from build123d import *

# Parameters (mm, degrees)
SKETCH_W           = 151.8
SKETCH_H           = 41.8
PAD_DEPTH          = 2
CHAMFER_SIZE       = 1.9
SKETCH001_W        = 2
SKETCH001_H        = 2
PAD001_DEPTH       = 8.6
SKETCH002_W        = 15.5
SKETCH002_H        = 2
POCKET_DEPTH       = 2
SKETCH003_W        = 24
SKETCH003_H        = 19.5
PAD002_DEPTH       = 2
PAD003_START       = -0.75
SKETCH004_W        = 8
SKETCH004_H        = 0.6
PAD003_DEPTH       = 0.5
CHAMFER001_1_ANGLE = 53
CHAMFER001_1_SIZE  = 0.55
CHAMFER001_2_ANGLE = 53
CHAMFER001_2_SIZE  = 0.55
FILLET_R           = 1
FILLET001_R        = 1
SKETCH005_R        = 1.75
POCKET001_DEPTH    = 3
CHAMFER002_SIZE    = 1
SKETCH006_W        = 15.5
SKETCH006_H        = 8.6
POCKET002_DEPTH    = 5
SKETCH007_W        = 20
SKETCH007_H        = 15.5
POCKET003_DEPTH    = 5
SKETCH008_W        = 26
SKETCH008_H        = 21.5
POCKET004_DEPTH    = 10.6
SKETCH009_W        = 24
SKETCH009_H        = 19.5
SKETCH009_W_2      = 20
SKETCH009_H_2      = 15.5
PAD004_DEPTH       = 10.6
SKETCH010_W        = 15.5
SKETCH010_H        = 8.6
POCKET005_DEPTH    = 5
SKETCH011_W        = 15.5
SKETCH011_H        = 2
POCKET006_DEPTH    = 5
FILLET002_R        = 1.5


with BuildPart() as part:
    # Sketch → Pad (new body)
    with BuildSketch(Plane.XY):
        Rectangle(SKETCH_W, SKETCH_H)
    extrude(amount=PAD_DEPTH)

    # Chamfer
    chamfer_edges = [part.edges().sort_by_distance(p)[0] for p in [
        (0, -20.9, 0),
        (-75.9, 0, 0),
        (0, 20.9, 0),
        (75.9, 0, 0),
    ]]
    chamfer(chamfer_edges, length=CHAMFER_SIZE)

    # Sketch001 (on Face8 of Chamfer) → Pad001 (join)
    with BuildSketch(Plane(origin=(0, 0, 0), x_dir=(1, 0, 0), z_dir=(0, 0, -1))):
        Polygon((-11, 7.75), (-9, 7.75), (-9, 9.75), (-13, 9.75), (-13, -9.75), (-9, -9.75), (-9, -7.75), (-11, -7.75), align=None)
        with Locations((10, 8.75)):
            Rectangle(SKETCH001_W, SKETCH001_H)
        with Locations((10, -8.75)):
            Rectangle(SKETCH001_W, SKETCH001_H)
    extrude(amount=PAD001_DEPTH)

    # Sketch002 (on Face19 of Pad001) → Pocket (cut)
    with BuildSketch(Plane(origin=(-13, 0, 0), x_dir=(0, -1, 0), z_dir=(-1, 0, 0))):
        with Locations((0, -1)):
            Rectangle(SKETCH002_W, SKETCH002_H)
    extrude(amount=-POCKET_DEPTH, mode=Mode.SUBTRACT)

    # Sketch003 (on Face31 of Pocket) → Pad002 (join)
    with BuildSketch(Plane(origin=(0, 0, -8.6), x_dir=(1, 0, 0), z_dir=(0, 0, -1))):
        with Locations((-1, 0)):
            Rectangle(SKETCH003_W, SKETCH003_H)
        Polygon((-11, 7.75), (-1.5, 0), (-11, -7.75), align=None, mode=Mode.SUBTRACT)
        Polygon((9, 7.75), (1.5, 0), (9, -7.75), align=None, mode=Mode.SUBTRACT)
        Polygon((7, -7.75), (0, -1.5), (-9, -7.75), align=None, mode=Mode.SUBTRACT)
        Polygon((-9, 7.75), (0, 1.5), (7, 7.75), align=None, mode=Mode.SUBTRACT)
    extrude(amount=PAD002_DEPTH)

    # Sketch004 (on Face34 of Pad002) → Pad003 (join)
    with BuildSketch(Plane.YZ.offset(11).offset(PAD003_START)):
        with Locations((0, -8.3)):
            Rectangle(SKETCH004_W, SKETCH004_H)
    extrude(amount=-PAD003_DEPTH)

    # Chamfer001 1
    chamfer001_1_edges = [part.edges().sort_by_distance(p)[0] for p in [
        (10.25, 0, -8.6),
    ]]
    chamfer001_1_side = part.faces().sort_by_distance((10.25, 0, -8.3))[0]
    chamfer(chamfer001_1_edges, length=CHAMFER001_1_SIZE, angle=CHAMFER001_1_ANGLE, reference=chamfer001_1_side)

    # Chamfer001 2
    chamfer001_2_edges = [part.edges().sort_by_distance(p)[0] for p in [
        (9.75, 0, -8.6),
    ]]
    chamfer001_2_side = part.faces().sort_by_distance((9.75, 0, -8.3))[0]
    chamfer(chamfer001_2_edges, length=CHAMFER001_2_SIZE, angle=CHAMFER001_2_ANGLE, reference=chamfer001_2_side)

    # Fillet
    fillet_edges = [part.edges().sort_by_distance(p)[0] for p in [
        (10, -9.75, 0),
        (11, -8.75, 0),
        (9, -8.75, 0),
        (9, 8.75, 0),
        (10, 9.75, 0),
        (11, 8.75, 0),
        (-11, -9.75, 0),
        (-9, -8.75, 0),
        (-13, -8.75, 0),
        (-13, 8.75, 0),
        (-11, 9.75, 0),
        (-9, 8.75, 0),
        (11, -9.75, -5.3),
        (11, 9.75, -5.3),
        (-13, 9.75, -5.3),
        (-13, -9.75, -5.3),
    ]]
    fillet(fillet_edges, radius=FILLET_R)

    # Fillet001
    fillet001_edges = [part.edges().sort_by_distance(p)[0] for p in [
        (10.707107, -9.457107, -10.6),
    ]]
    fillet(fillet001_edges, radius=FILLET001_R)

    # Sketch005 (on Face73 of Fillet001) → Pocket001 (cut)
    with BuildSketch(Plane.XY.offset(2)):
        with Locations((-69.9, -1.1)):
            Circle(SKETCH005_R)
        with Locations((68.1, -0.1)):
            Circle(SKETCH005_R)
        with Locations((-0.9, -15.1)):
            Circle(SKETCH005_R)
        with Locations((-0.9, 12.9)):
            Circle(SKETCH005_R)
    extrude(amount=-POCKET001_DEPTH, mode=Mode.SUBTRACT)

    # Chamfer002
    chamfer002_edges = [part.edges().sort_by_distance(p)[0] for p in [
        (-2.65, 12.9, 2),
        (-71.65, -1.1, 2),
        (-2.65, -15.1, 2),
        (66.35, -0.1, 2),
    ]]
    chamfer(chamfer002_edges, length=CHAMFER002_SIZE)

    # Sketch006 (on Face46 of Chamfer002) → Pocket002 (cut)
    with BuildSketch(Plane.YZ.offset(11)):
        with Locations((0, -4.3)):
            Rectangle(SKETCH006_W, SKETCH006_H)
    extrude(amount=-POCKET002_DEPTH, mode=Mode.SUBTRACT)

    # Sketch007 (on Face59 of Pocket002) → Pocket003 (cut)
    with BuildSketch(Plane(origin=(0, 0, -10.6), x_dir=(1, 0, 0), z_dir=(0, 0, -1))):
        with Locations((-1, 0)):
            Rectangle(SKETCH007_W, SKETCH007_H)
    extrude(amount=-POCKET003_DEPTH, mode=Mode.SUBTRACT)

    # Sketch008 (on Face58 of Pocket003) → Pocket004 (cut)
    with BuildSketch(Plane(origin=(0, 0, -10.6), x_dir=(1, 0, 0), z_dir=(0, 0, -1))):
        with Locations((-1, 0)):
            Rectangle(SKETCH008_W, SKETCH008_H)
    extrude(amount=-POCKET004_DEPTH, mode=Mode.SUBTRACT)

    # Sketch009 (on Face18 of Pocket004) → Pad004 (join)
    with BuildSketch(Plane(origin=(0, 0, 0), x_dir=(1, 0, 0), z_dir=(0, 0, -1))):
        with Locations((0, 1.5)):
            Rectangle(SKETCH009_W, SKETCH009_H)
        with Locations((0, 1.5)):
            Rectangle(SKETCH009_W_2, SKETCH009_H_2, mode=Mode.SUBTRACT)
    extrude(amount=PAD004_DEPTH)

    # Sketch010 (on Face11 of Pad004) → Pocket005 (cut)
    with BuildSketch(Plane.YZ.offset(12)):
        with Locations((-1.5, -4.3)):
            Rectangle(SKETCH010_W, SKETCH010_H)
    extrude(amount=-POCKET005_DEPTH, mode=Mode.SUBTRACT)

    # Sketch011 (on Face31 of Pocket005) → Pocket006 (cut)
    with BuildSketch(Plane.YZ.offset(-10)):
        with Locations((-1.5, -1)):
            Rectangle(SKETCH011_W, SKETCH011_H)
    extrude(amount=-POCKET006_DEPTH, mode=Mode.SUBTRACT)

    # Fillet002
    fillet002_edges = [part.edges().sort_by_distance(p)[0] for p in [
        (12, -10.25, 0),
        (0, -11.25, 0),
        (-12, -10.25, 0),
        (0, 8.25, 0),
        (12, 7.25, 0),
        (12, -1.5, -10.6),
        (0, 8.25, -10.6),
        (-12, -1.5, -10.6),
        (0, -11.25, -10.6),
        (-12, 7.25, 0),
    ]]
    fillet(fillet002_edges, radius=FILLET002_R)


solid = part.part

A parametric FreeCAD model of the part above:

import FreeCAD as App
import Part
import Sketcher

V = App.Vector
Q = App.Units.Quantity


def edges_at(feature, points):
    """Names of the edges that pass closest to the given points."""
    edges = feature.Shape.Edges
    near = lambda p: min(range(len(edges)), key=lambda i: edges[i].distToShape(Part.Vertex(*p))[0])
    return sorted({f"Edge{near(p) + 1}" for p in points})


def add_polygon(sketch, points):
    """Adds a closed chain of lines whose ends are joined by coincident constraints."""
    first, n = sketch.GeometryCount, len(points)
    for a, b in zip(points, points[1:] + points[:1]):
        sketch.addGeometry(Part.LineSegment(App.Vector(*a, 0), App.Vector(*b, 0)), False)
    for i in range(n):
        sketch.addConstraint(Sketcher.Constraint("Coincident", first + i, 2, first + (i + 1) % n, 1))

doc = App.newDocument("Part")
params = doc.addObject("Spreadsheet::Sheet", "Params")
for row, (alias, value) in enumerate([
    ("sketch1_width", "151.8 mm"),
    ("sketch1_height", "41.8 mm"),
    ("pad1_length", "2 mm"),
    ("chamfer_size", "1.9 mm"),
    ("sketch2_width", "2 mm"),
    ("sketch2_width2", "4 mm"),
    ("sketch2_height", "19.5 mm"),
    ("pad2_length", "8.6 mm"),
    ("sketch3_height", "2 mm"),
    ("sketch3_width", "15.5 mm"),
    ("pocket1_length", "2 mm"),
    ("sketch4_width", "24 mm"),
    ("sketch4_width2", "16 mm"),
    ("sketch4_height", "19.5 mm"),
    ("sketch4_height2", "15.5 mm"),
    ("pad3_length", "2 mm"),
    ("sketch5_width", "8 mm"),
    ("sketch5_height", "0.6 mm"),
    ("pad4_length", "0.5 mm"),
    ("chamfer2_size", "0.55 mm"),
    ("chamfer3_size", "0.55 mm"),
    ("fillet_radius", "1 mm"),
    ("fillet2_radius", "1 mm"),
    ("sketch6_diameter", "3.5 mm"),
    ("pocket2_length", "3 mm"),
    ("chamfer4_size", "1 mm"),
    ("sketch7_width", "15.5 mm"),
    ("sketch7_height", "8.6 mm"),
    ("pocket3_length", "5 mm"),
    ("sketch8_width", "20 mm"),
    ("sketch8_height", "15.5 mm"),
    ("pocket4_length", "5 mm"),
    ("sketch9_width", "26 mm"),
    ("sketch9_height", "21.5 mm"),
    ("pocket5_length", "10.6 mm"),
    ("sketch10_width", "24 mm"),
    ("sketch10_width2", "20 mm"),
    ("sketch10_height", "19.5 mm"),
    ("sketch10_height2", "15.5 mm"),
    ("pad5_length", "10.6 mm"),
    ("sketch11_width", "15.5 mm"),
    ("sketch11_height", "8.6 mm"),
    ("pocket6_length", "5 mm"),
    ("sketch12_height", "2 mm"),
    ("sketch12_width", "15.5 mm"),
    ("pocket7_length", "5 mm"),
    ("fillet3_radius", "1.5 mm"),
], start=1):
    params.set(f"A{row}", alias)
    params.set(f"B{row}", "=" + value)
    params.setAlias(f"B{row}", alias)

body = doc.addObject("PartDesign::Body", "Body")

sketch1 = body.newObject("Sketcher::SketchObject", "Sketch")
sketch1.AttachmentSupport = (doc.getObject("XY_Plane"), [""])
sketch1.MapMode = "FlatFace"
add_polygon(sketch1, [(-76, 21), (-76, -21), (76, -21), (76, 21)])
sketch1.addConstraint(Sketcher.Constraint("Vertical", 0))
sketch1.addConstraint(Sketcher.Constraint("Horizontal", 1))
sketch1.addConstraint(Sketcher.Constraint("Vertical", 2))
sketch1.addConstraint(Sketcher.Constraint("Horizontal", 3))
sketch1.addConstraint(Sketcher.Constraint("Symmetric", 0, 2, 2, 2, -1, 1))
sketch1.addConstraint(Sketcher.Constraint("DistanceX", 1, 1, 1, 2, Q("151.8 mm")))
sketch1.addConstraint(Sketcher.Constraint("DistanceY", 0, 2, 0, 1, Q("41.8 mm")))
sketch1.setExpression("Constraints[9]", "Params.sketch1_width")
sketch1.setExpression("Constraints[10]", "Params.sketch1_height")
pad1 = body.newObject("PartDesign::Pad", "Pad")
pad1.Profile = sketch1
pad1.setExpression("Length", "Params.pad1_length")
doc.recompute()

chamfer = body.newObject("PartDesign::Chamfer", "Chamfer")
chamfer.Base = (pad1, edges_at(pad1, [
    (0, -20.9, 0),
    (-75.9, 0, 0),
    (0, 20.9, 0),
    (75.9, 0, 0),
]))
chamfer.setExpression("Size", "Params.chamfer_size")

sketch2 = body.newObject("Sketcher::SketchObject", "Sketch001")
sketch2.AttachmentSupport = (doc.getObject("XY_Plane"), [""])
sketch2.MapMode = "FlatFace"
add_polygon(sketch2, [(-11, -7.8), (-9, -7.8), (-9, -9.8), (-13, -9.8), (-13, 9.8), (-9, 9.8), (-9, 7.8), (-11, 7.8)])
add_polygon(sketch2, [(9, -9.8), (9, -7.8), (11, -7.8), (11, -9.8)])
add_polygon(sketch2, [(9, 7.8), (9, 9.8), (11, 9.8), (11, 7.8)])
sketch2.addConstraint(Sketcher.Constraint("Horizontal", 0))
sketch2.addConstraint(Sketcher.Constraint("Vertical", 1))
sketch2.addConstraint(Sketcher.Constraint("Horizontal", 2))
sketch2.addConstraint(Sketcher.Constraint("Vertical", 3))
sketch2.addConstraint(Sketcher.Constraint("Horizontal", 4))
sketch2.addConstraint(Sketcher.Constraint("Vertical", 5))
sketch2.addConstraint(Sketcher.Constraint("Horizontal", 6))
sketch2.addConstraint(Sketcher.Constraint("Vertical", 7))
sketch2.addConstraint(Sketcher.Constraint("Vertical", 8))
sketch2.addConstraint(Sketcher.Constraint("Horizontal", 9))
sketch2.addConstraint(Sketcher.Constraint("Vertical", 10))
sketch2.addConstraint(Sketcher.Constraint("Horizontal", 11))
sketch2.addConstraint(Sketcher.Constraint("Vertical", 12))
sketch2.addConstraint(Sketcher.Constraint("Horizontal", 13))
sketch2.addConstraint(Sketcher.Constraint("Vertical", 14))
sketch2.addConstraint(Sketcher.Constraint("Horizontal", 15))
sketch2.addConstraint(Sketcher.Constraint("Symmetric", 5, 2, 8, 2, -1, 1))
sketch2.addConstraint(Sketcher.Constraint("Symmetric", 1, 2, 12, 2, -1, 1))
sketch2.addConstraint(Sketcher.Constraint("Symmetric", 7, 2, 14, 2, -1, 1))
sketch2.addConstraint(Sketcher.Constraint("Symmetric", 0, 2, 8, 2, -2))
sketch2.addConstraint(Sketcher.Constraint("Symmetric", 10, 2, 13, 2, -1))
sketch2.addConstraint(Sketcher.Constraint("Horizontal", 4, 2, 12, 2))
sketch2.addConstraint(Sketcher.Constraint("Equal", 15, 1))
sketch2.addConstraint(Sketcher.Constraint("DistanceX", 0, 1, 0, 2, Q("2 mm")))
sketch2.addConstraint(Sketcher.Constraint("DistanceX", 2, 2, 2, 1, Q("4 mm")))
sketch2.addConstraint(Sketcher.Constraint("DistanceY", 3, 1, 3, 2, Q("19.5 mm")))
sketch2.addConstraint(Sketcher.Constraint("DistanceX", 0, 2, -1, 1, Q("9 mm")))
sketch2.setExpression("Constraints[39]", "Params.sketch2_width")
sketch2.setExpression("Constraints[40]", "Params.sketch2_width2")
sketch2.setExpression("Constraints[41]", "Params.sketch2_height")
pad2 = body.newObject("PartDesign::Pad", "Pad001")
pad2.Profile = sketch2
pad2.setExpression("Length", "Params.pad2_length")
pad2.Reversed = True

sketch3 = body.newObject("Sketcher::SketchObject", "Sketch002")
sketch3.AttachmentSupport = (doc.getObject("YZ_Plane"), [""])
sketch3.MapMode = "FlatFace"
sketch3.AttachmentOffset = App.Placement(V(0, 0, -13), App.Rotation())
add_polygon(sketch3, [(7.8, 0), (7.8, -2), (-7.8, -2), (-7.8, 0)])
sketch3.addConstraint(Sketcher.Constraint("Vertical", 0))
sketch3.addConstraint(Sketcher.Constraint("Horizontal", 1))
sketch3.addConstraint(Sketcher.Constraint("Vertical", 2))
sketch3.addConstraint(Sketcher.Constraint("Horizontal", 3))
sketch3.addConstraint(Sketcher.Constraint("Symmetric", 2, 2, 3, 2, -1, 1))
sketch3.addConstraint(Sketcher.Constraint("DistanceY", 0, 2, 0, 1, Q("2 mm")))
sketch3.addConstraint(Sketcher.Constraint("DistanceX", 1, 2, 1, 1, Q("15.5 mm")))
sketch3.setExpression("Constraints[9]", "Params.sketch3_height")
sketch3.setExpression("Constraints[10]", "Params.sketch3_width")
pocket1 = body.newObject("PartDesign::Pocket", "Pocket")
pocket1.Profile = sketch3
pocket1.setExpression("Length", "Params.pocket1_length")
pocket1.Reversed = True

sketch4 = body.newObject("Sketcher::SketchObject", "Sketch003")
sketch4.AttachmentSupport = (doc.getObject("XY_Plane"), [""])
sketch4.MapMode = "FlatFace"
sketch4.AttachmentOffset = App.Placement(V(0, 0, -8.6), App.Rotation())
add_polygon(sketch4, [(-13, -10), (-13, 10), (11, 10), (11, -10)])
add_polygon(sketch4, [(-11, 8), (-11, -8), (-2, 0)])
add_polygon(sketch4, [(0, 2), (7, 8), (-9, 8)])
add_polygon(sketch4, [(2, 0), (9, -8), (9, 8)])
add_polygon(sketch4, [(0, -2), (-9, -8), (7, -8)])
sketch4.addConstraint(Sketcher.Constraint("Vertical", 0))
sketch4.addConstraint(Sketcher.Constraint("Horizontal", 1))
sketch4.addConstraint(Sketcher.Constraint("Vertical", 2))
sketch4.addConstraint(Sketcher.Constraint("Horizontal", 3))
sketch4.addConstraint(Sketcher.Constraint("Vertical", 4))
sketch4.addConstraint(Sketcher.Constraint("Horizontal", 8))
sketch4.addConstraint(Sketcher.Constraint("Vertical", 11))
sketch4.addConstraint(Sketcher.Constraint("Horizontal", 14))
sketch4.addConstraint(Sketcher.Constraint("Symmetric", 8, 2, 10, 2, -1, 1))
sketch4.addConstraint(Sketcher.Constraint("Symmetric", 5, 2, 12, 2, -1, 1))
sketch4.addConstraint(Sketcher.Constraint("Symmetric", 11, 2, 13, 2, -1, 1))
sketch4.addConstraint(Sketcher.Constraint("Symmetric", 9, 2, 15, 2, -1, 1))
sketch4.addConstraint(Sketcher.Constraint("Symmetric", 7, 2, 14, 2, -1))
sketch4.addConstraint(Sketcher.Constraint("PointOnObject", 5, 2, -1))
sketch4.addConstraint(Sketcher.Constraint("PointOnObject", 9, 2, -2))
sketch4.addConstraint(Sketcher.Constraint("Horizontal", 6, 2, 7, 2))
sketch4.addConstraint(Sketcher.Constraint("Horizontal", 4, 2, 10, 2))
sketch4.addConstraint(Sketcher.Constraint("DistanceX", 1, 1, 1, 2, Q("24 mm")))
sketch4.addConstraint(Sketcher.Constraint("DistanceX", 8, 2, 8, 1, Q("16 mm")))
sketch4.addConstraint(Sketcher.Constraint("DistanceY", 0, 1, 0, 2, Q("19.5 mm")))
sketch4.addConstraint(Sketcher.Constraint("DistanceY", 4, 2, 4, 1, Q("15.5 mm")))
sketch4.addConstraint(Sketcher.Constraint("DistanceX", 0, 2, -1, 1, Q("13 mm")))
sketch4.addConstraint(Sketcher.Constraint("DistanceX", 4, 2, -1, 1, Q("11 mm")))
sketch4.addConstraint(Sketcher.Constraint("DistanceX", -1, 1, 7, 2, Q("7 mm")))
sketch4.addConstraint(Sketcher.Constraint("DistanceY", 3, 2, 4, 2, Q("2 mm")))
sketch4.addConstraint(Sketcher.Constraint("DistanceX", 5, 2, 12, 2, Q("3 mm")))
sketch4.addConstraint(Sketcher.Constraint("DistanceY", 15, 2, 9, 2, Q("3 mm")))
sketch4.setExpression("Constraints[33]", "Params.sketch4_width")
sketch4.setExpression("Constraints[34]", "Params.sketch4_width2")
sketch4.setExpression("Constraints[35]", "Params.sketch4_height")
sketch4.setExpression("Constraints[36]", "Params.sketch4_height2")
pad3 = body.newObject("PartDesign::Pad", "Pad002")
pad3.Profile = sketch4
pad3.setExpression("Length", "Params.pad3_length")
pad3.Reversed = True

sketch5 = body.newObject("Sketcher::SketchObject", "Sketch004")
sketch5.AttachmentSupport = (doc.getObject("YZ_Plane"), [""])
sketch5.MapMode = "FlatFace"
sketch5.AttachmentOffset = App.Placement(V(0, 0, 10.25), App.Rotation())
add_polygon(sketch5, [(-4, -8), (-4, -8.6), (4, -8.6), (4, -8)])
sketch5.addConstraint(Sketcher.Constraint("Vertical", 0))
sketch5.addConstraint(Sketcher.Constraint("Horizontal", 1))
sketch5.addConstraint(Sketcher.Constraint("Vertical", 2))
sketch5.addConstraint(Sketcher.Constraint("Horizontal", 3))
sketch5.addConstraint(Sketcher.Constraint("DistanceX", 1, 1, 1, 2, Q("8 mm")))
sketch5.addConstraint(Sketcher.Constraint("DistanceY", 0, 2, 0, 1, Q("0.6 mm")))
sketch5.addConstraint(Sketcher.Constraint("DistanceX", 0, 2, -1, 1, Q("4 mm")))
sketch5.addConstraint(Sketcher.Constraint("DistanceY", 2, 2, -1, 1, Q("8 mm")))
sketch5.setExpression("Constraints[8]", "Params.sketch5_width")
sketch5.setExpression("Constraints[9]", "Params.sketch5_height")
pad4 = body.newObject("PartDesign::Pad", "Pad003")
pad4.Profile = sketch5
pad4.setExpression("Length", "Params.pad4_length")
pad4.Reversed = True
doc.recompute()

chamfer2 = body.newObject("PartDesign::Chamfer", "Chamfer001")
chamfer2.Base = (pad4, edges_at(pad4, [(10.25, 0, -8.6)]))
chamfer2.ChamferType = "Distance and Angle"
chamfer2.setExpression("Size", "Params.chamfer2_size")
chamfer2.Angle = 53
chamfer2.FlipDirection = True
doc.recompute()

chamfer3 = body.newObject("PartDesign::Chamfer", "Chamfer002")
chamfer3.Base = (chamfer2, edges_at(chamfer2, [(9.75, 0, -8.6)]))
chamfer3.ChamferType = "Distance and Angle"
chamfer3.setExpression("Size", "Params.chamfer3_size")
chamfer3.Angle = 53
chamfer3.FlipDirection = True
doc.recompute()

fillet = body.newObject("PartDesign::Fillet", "Fillet")
fillet.Base = (chamfer3, edges_at(chamfer3, [
    (10, -9.75, 0),
    (11, -8.75, 0),
    (9, -8.75, 0),
    (9, 8.75, 0),
    (10, 9.75, 0),
    (11, 8.75, 0),
    (-11, -9.75, 0),
    (-9, -8.75, 0),
    (-13, -8.75, 0),
    (-13, 8.75, 0),
    (-11, 9.75, 0),
    (-9, 8.75, 0),
    (11, -9.75, -5.3),
    (11, 9.75, -5.3),
    (-13, 9.75, -5.3),
    (-13, -9.75, -5.3),
]))
fillet.setExpression("Radius", "Params.fillet_radius")
doc.recompute()

fillet2 = body.newObject("PartDesign::Fillet", "Fillet001")
fillet2.Base = (fillet, edges_at(fillet, [(10.707, -9.457, -10.6)]))
fillet2.setExpression("Radius", "Params.fillet2_radius")

sketch6 = body.newObject("Sketcher::SketchObject", "Sketch005")
sketch6.AttachmentSupport = (doc.getObject("XY_Plane"), [""])
sketch6.MapMode = "FlatFace"
sketch6.AttachmentOffset = App.Placement(V(0, 0, 2), App.Rotation())
sketch6.addGeometry(Part.Circle(V(-69.9, -1.1, 0), V(0, 0, 1), 1.8), False)
sketch6.addGeometry(Part.Circle(V(68.1, -0.1, 0), V(0, 0, 1), 1.8), False)
sketch6.addGeometry(Part.Circle(V(-0.9, -15.1, 0), V(0, 0, 1), 1.8), False)
sketch6.addGeometry(Part.Circle(V(-0.9, 12.9, 0), V(0, 0, 1), 1.8), False)
sketch6.addConstraint(Sketcher.Constraint("Equal", 0, 1))
sketch6.addConstraint(Sketcher.Constraint("Equal", 1, 2))
sketch6.addConstraint(Sketcher.Constraint("Equal", 2, 3))
sketch6.addConstraint(Sketcher.Constraint("Vertical", 2, 3, 3, 3))
sketch6.addConstraint(Sketcher.Constraint("Diameter", 0, Q("3.5 mm")))
sketch6.addConstraint(Sketcher.Constraint("DistanceX", 0, 3, 1, 3, Q("138 mm")))
sketch6.addConstraint(Sketcher.Constraint("DistanceY", 0, 3, 1, 3, Q("1 mm")))
sketch6.addConstraint(Sketcher.Constraint("DistanceX", 0, 3, 2, 3, Q("69 mm")))
sketch6.addConstraint(Sketcher.Constraint("DistanceY", 2, 3, 0, 3, Q("14 mm")))
sketch6.addConstraint(Sketcher.Constraint("DistanceY", 2, 3, 3, 3, Q("28 mm")))
sketch6.addConstraint(Sketcher.Constraint("DistanceX", 0, 3, -1, 1, Q("69.9 mm")))
sketch6.addConstraint(Sketcher.Constraint("DistanceY", 0, 3, -1, 1, Q("1.1 mm")))
sketch6.setExpression("Constraints[4]", "Params.sketch6_diameter")
pocket2 = body.newObject("PartDesign::Pocket", "Pocket001")
pocket2.Profile = sketch6
pocket2.setExpression("Length", "Params.pocket2_length")
doc.recompute()

chamfer4 = body.newObject("PartDesign::Chamfer", "Chamfer003")
chamfer4.Base = (pocket2, edges_at(pocket2, [
    (-2.65, 12.9, 2),
    (-71.65, -1.1, 2),
    (-2.65, -15.1, 2),
    (66.35, -0.1, 2),
]))
chamfer4.setExpression("Size", "Params.chamfer4_size")

sketch7 = body.newObject("Sketcher::SketchObject", "Sketch006")
sketch7.AttachmentSupport = (doc.getObject("YZ_Plane"), [""])
sketch7.MapMode = "FlatFace"
sketch7.AttachmentOffset = App.Placement(V(0, 0, 11), App.Rotation())
add_polygon(sketch7, [(-8, 0), (-8, -9), (8, -9), (8, 0)])
sketch7.addConstraint(Sketcher.Constraint("Vertical", 0))
sketch7.addConstraint(Sketcher.Constraint("Horizontal", 1))
sketch7.addConstraint(Sketcher.Constraint("Vertical", 2))
sketch7.addConstraint(Sketcher.Constraint("Horizontal", 3))
sketch7.addConstraint(Sketcher.Constraint("Symmetric", 2, 2, 3, 2, -1, 1))
sketch7.addConstraint(Sketcher.Constraint("DistanceX", 1, 1, 1, 2, Q("15.5 mm")))
sketch7.addConstraint(Sketcher.Constraint("DistanceY", 0, 2, 0, 1, Q("8.6 mm")))
sketch7.setExpression("Constraints[9]", "Params.sketch7_width")
sketch7.setExpression("Constraints[10]", "Params.sketch7_height")
pocket3 = body.newObject("PartDesign::Pocket", "Pocket002")
pocket3.Profile = sketch7
pocket3.setExpression("Length", "Params.pocket3_length")

sketch8 = body.newObject("Sketcher::SketchObject", "Sketch007")
sketch8.AttachmentSupport = (doc.getObject("XY_Plane"), [""])
sketch8.MapMode = "FlatFace"
sketch8.AttachmentOffset = App.Placement(V(0, 0, -10.6), App.Rotation())
add_polygon(sketch8, [(-11, -8), (-11, 8), (9, 8), (9, -8)])
sketch8.addConstraint(Sketcher.Constraint("Vertical", 0))
sketch8.addConstraint(Sketcher.Constraint("Horizontal", 1))
sketch8.addConstraint(Sketcher.Constraint("Vertical", 2))
sketch8.addConstraint(Sketcher.Constraint("Horizontal", 3))
sketch8.addConstraint(Sketcher.Constraint("DistanceX", 1, 1, 1, 2, Q("20 mm")))
sketch8.addConstraint(Sketcher.Constraint("DistanceY", 0, 1, 0, 2, Q("15.5 mm")))
sketch8.addConstraint(Sketcher.Constraint("DistanceX", 0, 2, -1, 1, Q("11 mm")))
sketch8.addConstraint(Sketcher.Constraint("DistanceY", -1, 1, 0, 2, Q("7.75 mm")))
sketch8.setExpression("Constraints[8]", "Params.sketch8_width")
sketch8.setExpression("Constraints[9]", "Params.sketch8_height")
pocket4 = body.newObject("PartDesign::Pocket", "Pocket003")
pocket4.Profile = sketch8
pocket4.setExpression("Length", "Params.pocket4_length")
pocket4.Reversed = True

sketch9 = body.newObject("Sketcher::SketchObject", "Sketch008")
sketch9.AttachmentSupport = (doc.getObject("XY_Plane"), [""])
sketch9.MapMode = "FlatFace"
sketch9.AttachmentOffset = App.Placement(V(0, 0, -10.6), App.Rotation())
add_polygon(sketch9, [(-14, -11), (-14, 11), (12, 11), (12, -11)])
sketch9.addConstraint(Sketcher.Constraint("Vertical", 0))
sketch9.addConstraint(Sketcher.Constraint("Horizontal", 1))
sketch9.addConstraint(Sketcher.Constraint("Vertical", 2))
sketch9.addConstraint(Sketcher.Constraint("Horizontal", 3))
sketch9.addConstraint(Sketcher.Constraint("DistanceX", 1, 1, 1, 2, Q("26 mm")))
sketch9.addConstraint(Sketcher.Constraint("DistanceY", 0, 1, 0, 2, Q("21.5 mm")))
sketch9.addConstraint(Sketcher.Constraint("DistanceX", 0, 2, -1, 1, Q("14 mm")))
sketch9.addConstraint(Sketcher.Constraint("DistanceY", -1, 1, 0, 2, Q("10.75 mm")))
sketch9.setExpression("Constraints[8]", "Params.sketch9_width")
sketch9.setExpression("Constraints[9]", "Params.sketch9_height")
pocket5 = body.newObject("PartDesign::Pocket", "Pocket004")
pocket5.Profile = sketch9
pocket5.setExpression("Length", "Params.pocket5_length")
pocket5.Reversed = True

sketch10 = body.newObject("Sketcher::SketchObject", "Sketch009")
sketch10.AttachmentSupport = (doc.getObject("XY_Plane"), [""])
sketch10.MapMode = "FlatFace"
add_polygon(sketch10, [(-12, -11), (-12, 8), (12, 8), (12, -11)])
add_polygon(sketch10, [(10, 6), (-10, 6), (-10, -9), (10, -9)])
sketch10.addConstraint(Sketcher.Constraint("Vertical", 0))
sketch10.addConstraint(Sketcher.Constraint("Horizontal", 1))
sketch10.addConstraint(Sketcher.Constraint("Vertical", 2))
sketch10.addConstraint(Sketcher.Constraint("Horizontal", 3))
sketch10.addConstraint(Sketcher.Constraint("Horizontal", 4))
sketch10.addConstraint(Sketcher.Constraint("Vertical", 5))
sketch10.addConstraint(Sketcher.Constraint("Horizontal", 6))
sketch10.addConstraint(Sketcher.Constraint("Vertical", 7))
sketch10.addConstraint(Sketcher.Constraint("DistanceX", 1, 1, 1, 2, Q("24 mm")))
sketch10.addConstraint(Sketcher.Constraint("DistanceX", 4, 2, 4, 1, Q("20 mm")))
sketch10.addConstraint(Sketcher.Constraint("DistanceY", 0, 1, 0, 2, Q("19.5 mm")))
sketch10.addConstraint(Sketcher.Constraint("DistanceY", 5, 2, 5, 1, Q("15.5 mm")))
sketch10.addConstraint(Sketcher.Constraint("DistanceX", 0, 2, -1, 1, Q("12 mm")))
sketch10.addConstraint(Sketcher.Constraint("DistanceX", 4, 2, -1, 1, Q("10 mm")))
sketch10.addConstraint(Sketcher.Constraint("DistanceY", 4, 2, 0, 2, Q("2 mm")))
sketch10.addConstraint(Sketcher.Constraint("DistanceY", -1, 1, 0, 2, Q("8.25 mm")))
sketch10.setExpression("Constraints[16]", "Params.sketch10_width")
sketch10.setExpression("Constraints[17]", "Params.sketch10_width2")
sketch10.setExpression("Constraints[18]", "Params.sketch10_height")
sketch10.setExpression("Constraints[19]", "Params.sketch10_height2")
pad5 = body.newObject("PartDesign::Pad", "Pad004")
pad5.Profile = sketch10
pad5.setExpression("Length", "Params.pad5_length")
pad5.Reversed = True

sketch11 = body.newObject("Sketcher::SketchObject", "Sketch010")
sketch11.AttachmentSupport = (doc.getObject("YZ_Plane"), [""])
sketch11.MapMode = "FlatFace"
sketch11.AttachmentOffset = App.Placement(V(0, 0, 12), App.Rotation())
add_polygon(sketch11, [(-9, 0), (-9, -9), (6, -9), (6, 0)])
sketch11.addConstraint(Sketcher.Constraint("Vertical", 0))
sketch11.addConstraint(Sketcher.Constraint("Horizontal", 1))
sketch11.addConstraint(Sketcher.Constraint("Vertical", 2))
sketch11.addConstraint(Sketcher.Constraint("Horizontal", 3))
sketch11.addConstraint(Sketcher.Constraint("PointOnObject", 2, 2, -1))
sketch11.addConstraint(Sketcher.Constraint("DistanceX", 1, 1, 1, 2, Q("15.5 mm")))
sketch11.addConstraint(Sketcher.Constraint("DistanceY", 0, 2, 0, 1, Q("8.6 mm")))
sketch11.addConstraint(Sketcher.Constraint("DistanceX", 0, 2, -1, 1, Q("9.25 mm")))
sketch11.setExpression("Constraints[9]", "Params.sketch11_width")
sketch11.setExpression("Constraints[10]", "Params.sketch11_height")
pocket6 = body.newObject("PartDesign::Pocket", "Pocket005")
pocket6.Profile = sketch11
pocket6.setExpression("Length", "Params.pocket6_length")

sketch12 = body.newObject("Sketcher::SketchObject", "Sketch011")
sketch12.AttachmentSupport = (doc.getObject("YZ_Plane"), [""])
sketch12.MapMode = "FlatFace"
sketch12.AttachmentOffset = App.Placement(V(0, 0, -10), App.Rotation())
add_polygon(sketch12, [(-9.2, 0), (-9.2, -2), (6.2, -2), (6.2, 0)])
sketch12.addConstraint(Sketcher.Constraint("Vertical", 0))
sketch12.addConstraint(Sketcher.Constraint("Horizontal", 1))
sketch12.addConstraint(Sketcher.Constraint("Vertical", 2))
sketch12.addConstraint(Sketcher.Constraint("Horizontal", 3))
sketch12.addConstraint(Sketcher.Constraint("PointOnObject", 2, 2, -1))
sketch12.addConstraint(Sketcher.Constraint("DistanceY", 0, 2, 0, 1, Q("2 mm")))
sketch12.addConstraint(Sketcher.Constraint("DistanceX", 1, 1, 1, 2, Q("15.5 mm")))
sketch12.addConstraint(Sketcher.Constraint("DistanceX", 0, 2, -1, 1, Q("9.25 mm")))
sketch12.setExpression("Constraints[9]", "Params.sketch12_height")
sketch12.setExpression("Constraints[10]", "Params.sketch12_width")
pocket7 = body.newObject("PartDesign::Pocket", "Pocket006")
pocket7.Profile = sketch12
pocket7.setExpression("Length", "Params.pocket7_length")
doc.recompute()

fillet3 = body.newObject("PartDesign::Fillet", "Fillet002")
fillet3.Base = (pocket7, edges_at(pocket7, [
    (12, -10.25, 0),
    (0, -11.25, 0),
    (-12, -10.25, 0),
    (0, 8.25, 0),
    (12, 7.25, 0),
    (12, -1.5, -10.6),
    (0, 8.25, -10.6),
    (-12, -1.5, -10.6),
    (0, -11.25, -10.6),
    (-12, 7.25, 0),
]))
fillet3.setExpression("Radius", "Params.fillet3_radius")

doc.recompute()
